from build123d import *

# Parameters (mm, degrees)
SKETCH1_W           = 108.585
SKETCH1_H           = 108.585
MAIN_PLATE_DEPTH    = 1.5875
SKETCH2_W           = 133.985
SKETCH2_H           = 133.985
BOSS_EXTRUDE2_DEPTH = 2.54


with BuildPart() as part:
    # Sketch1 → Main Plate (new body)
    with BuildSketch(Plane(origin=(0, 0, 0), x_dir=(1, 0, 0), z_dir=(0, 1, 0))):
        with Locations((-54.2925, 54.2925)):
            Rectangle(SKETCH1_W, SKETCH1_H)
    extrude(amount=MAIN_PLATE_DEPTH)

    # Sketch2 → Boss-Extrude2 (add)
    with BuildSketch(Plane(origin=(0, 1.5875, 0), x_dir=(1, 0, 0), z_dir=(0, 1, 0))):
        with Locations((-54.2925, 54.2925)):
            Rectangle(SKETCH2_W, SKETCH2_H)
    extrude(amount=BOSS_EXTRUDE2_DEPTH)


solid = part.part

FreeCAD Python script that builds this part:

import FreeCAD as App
import Part
import Sketcher

V = App.Vector
Q = App.Units.Quantity

doc = App.newDocument("Part")
body = doc.addObject("PartDesign::Body", "Body")

# Sketch on XZ plane
sketch1 = body.newObject("Sketcher::SketchObject", "Sketch")
sketch1.AttachmentSupport = (doc.getObject("XZ_Plane"), [""])
sketch1.MapMode = "FlatFace"
sketch1.addGeometry([
    Part.LineSegment(V(-109, -109, 0), V(-109, 0, 0)),
    Part.LineSegment(V(-109, 0, 0), V(0, 0, 0)),
    Part.LineSegment(V(0, 0, 0), V(0, -109, 0)),
    Part.LineSegment(V(0, -109, 0), V(-109, -109, 0)),
], False)
sketch1.addConstraint([
    Sketcher.Constraint("Coincident", 0, 2, 1, 1),
    Sketcher.Constraint("Coincident", 1, 2, 2, 1),
    Sketcher.Constraint("Coincident", 2, 2, 3, 1),
    Sketcher.Constraint("Coincident", 3, 2, 0, 1),
    Sketcher.Constraint("Vertical", 0),
    Sketcher.Constraint("Horizontal", 1),
    Sketcher.Constraint("Vertical", 2),
    Sketcher.Constraint("Horizontal", 3),
    Sketcher.Constraint("Coincident", 1, 2, -1, 1),
    Sketcher.Constraint("Equal", 3, 0),
    Sketcher.Constraint("DistanceX", 1, 1, 1, 2, Q("4.275 in")),
])
pad1 = body.newObject("PartDesign::Pad", "Pad")
pad1.Profile = sketch1
pad1.Length = Q("0.0625 in")
pad1.Reversed = True

# Sketch on XZ plane
sketch2 = body.newObject("Sketcher::SketchObject", "Sketch001")
sketch2.AttachmentSupport = (doc.getObject("XZ_Plane"), [""])
sketch2.MapMode = "FlatFace"
sketch2.AttachmentOffset = App.Placement(V(0, 0, -0.0625 * 25.4), App.Rotation())
sketch2.addGeometry([
    Part.LineSegment(V(-121, -121, 0), V(-121, 13, 0)),
    Part.LineSegment(V(-121, 13, 0), V(13, 13, 0)),
    Part.LineSegment(V(13, 13, 0), V(13, -121, 0)),
    Part.LineSegment(V(13, -121, 0), V(-121, -121, 0)),
], False)
sketch2.addConstraint([
    Sketcher.Constraint("Coincident", 0, 2, 1, 1),
    Sketcher.Constraint("Coincident", 1, 2, 2, 1),
    Sketcher.Constraint("Coincident", 2, 2, 3, 1),
    Sketcher.Constraint("Coincident", 3, 2, 0, 1),
    Sketcher.Constraint("Vertical", 0),
    Sketcher.Constraint("Horizontal", 1),
    Sketcher.Constraint("Vertical", 2),
    Sketcher.Constraint("Horizontal", 3),
    Sketcher.Constraint("Equal", 3, 0),
    Sketcher.Constraint("DistanceY", -1, 1, 0, 2, Q("0.5 in")),
    Sketcher.Constraint("DistanceX", -1, 1, 1, 2, Q("0.5 in")),
    Sketcher.Constraint("DistanceX", 1, 1, 1, 2, Q("5.275 in")),
])
pad2 = body.newObject("PartDesign::Pad", "Pad001")
pad2.Profile = sketch2
pad2.Length = Q("0.1 in")
pad2.Reversed = True

doc.recompute()
